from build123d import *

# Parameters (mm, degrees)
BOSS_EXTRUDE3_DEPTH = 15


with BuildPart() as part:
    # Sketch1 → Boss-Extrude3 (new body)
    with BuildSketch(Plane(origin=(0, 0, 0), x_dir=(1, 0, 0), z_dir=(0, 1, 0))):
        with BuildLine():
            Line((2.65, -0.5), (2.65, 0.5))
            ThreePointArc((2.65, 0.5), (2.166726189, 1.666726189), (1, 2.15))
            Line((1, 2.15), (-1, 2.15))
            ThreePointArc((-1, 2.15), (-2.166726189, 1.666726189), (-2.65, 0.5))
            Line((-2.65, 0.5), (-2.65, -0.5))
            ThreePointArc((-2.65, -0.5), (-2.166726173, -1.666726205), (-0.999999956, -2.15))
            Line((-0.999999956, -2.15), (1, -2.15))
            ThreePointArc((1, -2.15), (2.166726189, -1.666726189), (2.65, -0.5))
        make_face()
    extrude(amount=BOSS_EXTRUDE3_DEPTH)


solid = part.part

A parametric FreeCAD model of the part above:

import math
import FreeCAD as App
import Part
import Sketcher
from FreeCAD import Vector
Q = App.Units.Quantity

doc = App.newDocument("Part")
body = doc.addObject("PartDesign::Body", "Body")

# Sketch on XZ plane
sketch1 = body.newObject("Sketcher::SketchObject", "Sketch")
sketch1.AttachmentSupport = (doc.getObject("XZ_Plane"), [""])
sketch1.MapMode = "FlatFace"
sketch1.addGeometry([
    Part.LineSegment(Vector(2.6, 0.5, 0), Vector(2.6, -0.5, 0)),  # 0
    Part.ArcOfCircle(Part.Circle(Vector(1, -0.5, 0), Vector(0, 0, 1), 1.6), math.radians(-90), math.radians(0)),  # 1
    Part.LineSegment(Vector(1, -2.1, 0), Vector(-1, -2.1, 0)),  # 2
    Part.ArcOfCircle(Part.Circle(Vector(-1, -0.5, 0), Vector(0, 0, 1), 1.6), math.radians(180), math.radians(270)),  # 3
    Part.LineSegment(Vector(-2.6, -0.5, 0), Vector(-2.6, 0.5, 0)),  # 4
    Part.ArcOfCircle(Part.Circle(Vector(-1, 0.5, 0), Vector(0, 0, 1), 1.6), math.radians(90), math.radians(180)),  # 5
    Part.LineSegment(Vector(-1, 2.1, 0), Vector(1, 2.1, 0)),  # 6
    Part.ArcOfCircle(Part.Circle(Vector(1, 0.5, 0), Vector(0, 0, 1), 1.6), math.radians(0), math.radians(90)),  # 7
], False)
sketch1.addConstraint([
    Sketcher.Constraint("Tangent", 0, 2, 1, 2),
    Sketcher.Constraint("Tangent", 1, 1, 2, 1),
    Sketcher.Constraint("Tangent", 2, 2, 3, 2),
    Sketcher.Constraint("Tangent", 3, 1, 4, 1),
    Sketcher.Constraint("Tangent", 4, 2, 5, 2),
    Sketcher.Constraint("Tangent", 5, 1, 6, 1),
    Sketcher.Constraint("Tangent", 6, 2, 7, 2),
    Sketcher.Constraint("Tangent", 7, 1, 0, 1),
    Sketcher.Constraint("Vertical", 0),
    Sketcher.Constraint("Horizontal", 2),
    Sketcher.Constraint("Vertical", 4),
    Sketcher.Constraint("Horizontal", 6),
    Sketcher.Constraint("Equal", 1, 3),
    Sketcher.Constraint("Equal", 3, 5),
    Sketcher.Constraint("Equal", 5, 7),
    Sketcher.Constraint("Symmetric", 1, 3, 5, 3, -1, 1),
    Sketcher.Constraint("DistanceX", 2, 2, 2, 1, Q("2 mm")),
    Sketcher.Constraint("DistanceY", 0, 2, 0, 1, Q("1 mm")),
    Sketcher.Constraint("Radius", 1, Q("1.65 mm")),
])
pad1 = body.newObject("PartDesign::Pad", "Pad")
pad1.Profile = sketch1
pad1.Length = 15
pad1.Reversed = True

doc.recompute()
